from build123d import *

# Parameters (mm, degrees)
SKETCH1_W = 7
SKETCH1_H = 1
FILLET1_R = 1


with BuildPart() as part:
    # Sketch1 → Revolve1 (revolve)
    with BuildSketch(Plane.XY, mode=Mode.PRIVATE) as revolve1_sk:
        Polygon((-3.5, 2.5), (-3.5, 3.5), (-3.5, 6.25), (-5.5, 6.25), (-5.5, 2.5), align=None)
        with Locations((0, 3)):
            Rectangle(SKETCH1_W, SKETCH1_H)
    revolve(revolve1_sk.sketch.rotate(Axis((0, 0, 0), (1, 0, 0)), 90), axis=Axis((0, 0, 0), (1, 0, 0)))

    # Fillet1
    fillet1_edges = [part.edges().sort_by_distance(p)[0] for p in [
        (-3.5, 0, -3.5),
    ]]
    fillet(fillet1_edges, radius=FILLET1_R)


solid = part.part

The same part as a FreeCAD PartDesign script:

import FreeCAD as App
import Part
import Sketcher
Q = App.Units.Quantity


def edges_at(feature, points):
    """Names of the edges that pass closest to the given points."""
    edges = feature.Shape.Edges
    near = lambda p: min(range(len(edges)), key=lambda i: edges[i].distToShape(Part.Vertex(*p))[0])
    return sorted({f"Edge{near(p) + 1}" for p in points})

doc = App.newDocument("Part")
body = doc.addObject("PartDesign::Body", "Body")

sketch1 = body.newObject("Sketcher::SketchObject", "Sketch")
sketch1.AttachmentSupport = (doc.getObject("XY_Plane"), [""])
sketch1.MapMode = "FlatFace"
sketch1.addGeometry([
    Part.LineSegment(App.Vector(-3.5, 3.5, 0), App.Vector(-3.5, 6.2, 0)),
    Part.LineSegment(App.Vector(-3.5, 6.2, 0), App.Vector(-5.5, 6.2, 0)),
    Part.LineSegment(App.Vector(-5.5, 6.2, 0), App.Vector(-5.5, 2.5, 0)),
    Part.LineSegment(App.Vector(-5.5, 2.5, 0), App.Vector(3.5, 2.5, 0)),
    Part.LineSegment(App.Vector(3.5, 2.5, 0), App.Vector(3.5, 3.5, 0)),
    Part.LineSegment(App.Vector(3.5, 3.5, 0), App.Vector(-3.5, 3.5, 0)),
], False)
sketch1.addConstraint([
    Sketcher.Constraint("Coincident", 0, 2, 1, 1),
    Sketcher.Constraint("Coincident", 1, 2, 2, 1),
    Sketcher.Constraint("Coincident", 2, 2, 3, 1),
    Sketcher.Constraint("Coincident", 3, 2, 4, 1),
    Sketcher.Constraint("Coincident", 4, 2, 5, 1),
    Sketcher.Constraint("Coincident", 5, 2, 0, 1),
    Sketcher.Constraint("Vertical", 0),
    Sketcher.Constraint("Horizontal", 1),
    Sketcher.Constraint("Vertical", 2),
    Sketcher.Constraint("Horizontal", 3),
    Sketcher.Constraint("Vertical", 4),
    Sketcher.Constraint("Horizontal", 5),
    Sketcher.Constraint("DistanceX", 1, 2, 1, 1, Q("2 mm")),
    Sketcher.Constraint("DistanceX", 3, 1, 3, 2, Q("9 mm")),
    Sketcher.Constraint("DistanceY", 4, 1, 4, 2, Q("1 mm")),
    Sketcher.Constraint("DistanceY", 0, 1, 0, 2, Q("2.75 mm")),
    Sketcher.Constraint("DistanceX", 0, 2, -1, 1, Q("3.5 mm")),
    Sketcher.Constraint("DistanceY", -1, 1, 2, 2, Q("2.5 mm")),
])
revolution = body.newObject("PartDesign::Revolution", "Revolution")
revolution.Profile = sketch1
revolution.ReferenceAxis = (sketch1, ["H_Axis"])
revolution.Angle = 360
doc.recompute()

fillet = body.newObject("PartDesign::Fillet", "Fillet")
fillet.Base = (revolution, edges_at(revolution, [(-3.5, 0, -3.5)]))
fillet.Radius = 1

doc.recompute()
